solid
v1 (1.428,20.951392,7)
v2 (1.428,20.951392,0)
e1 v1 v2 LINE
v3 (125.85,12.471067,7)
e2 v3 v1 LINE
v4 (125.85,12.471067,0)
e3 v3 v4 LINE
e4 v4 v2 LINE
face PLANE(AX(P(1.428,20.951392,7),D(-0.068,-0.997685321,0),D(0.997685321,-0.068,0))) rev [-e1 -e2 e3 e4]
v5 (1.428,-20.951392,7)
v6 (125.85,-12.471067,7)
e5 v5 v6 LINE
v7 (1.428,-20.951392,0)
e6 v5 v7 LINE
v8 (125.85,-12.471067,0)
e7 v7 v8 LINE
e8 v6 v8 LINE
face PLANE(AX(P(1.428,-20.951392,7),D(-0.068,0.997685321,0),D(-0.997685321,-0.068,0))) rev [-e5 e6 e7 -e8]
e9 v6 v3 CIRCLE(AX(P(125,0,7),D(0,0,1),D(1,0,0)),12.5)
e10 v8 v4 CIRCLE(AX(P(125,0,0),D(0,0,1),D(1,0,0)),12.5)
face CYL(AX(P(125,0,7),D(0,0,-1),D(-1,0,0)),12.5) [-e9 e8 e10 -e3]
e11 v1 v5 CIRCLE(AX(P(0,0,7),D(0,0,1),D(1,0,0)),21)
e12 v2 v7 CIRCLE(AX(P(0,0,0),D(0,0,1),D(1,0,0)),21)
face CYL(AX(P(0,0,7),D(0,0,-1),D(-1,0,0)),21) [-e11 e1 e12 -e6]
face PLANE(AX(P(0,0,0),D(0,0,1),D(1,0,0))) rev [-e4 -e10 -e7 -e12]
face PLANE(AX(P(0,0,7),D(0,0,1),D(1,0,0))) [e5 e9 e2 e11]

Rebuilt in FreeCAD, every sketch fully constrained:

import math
import FreeCAD as App
import Part
import Sketcher
from FreeCAD import Vector
Q = App.Units.Quantity

doc = App.newDocument("Part")
body = doc.addObject("PartDesign::Body", "Body")

# Sketch on XY plane
sketch1 = body.newObject("Sketcher::SketchObject", "Sketch")
sketch1.AttachmentSupport = (doc.getObject("XY_Plane"), [""])
sketch1.MapMode = "FlatFace"
sketch1.addGeometry([
    Part.LineSegment(Vector(126, 12, 0), Vector(1, 21, 0)),
    Part.ArcOfCircle(Part.Circle(Vector(0, 0, 0), Vector(0, 0, 1), 21), math.radians(86), math.radians(274)),
    Part.LineSegment(Vector(1, -21, 0), Vector(126, -12, 0)),
    Part.ArcOfCircle(Part.Circle(Vector(125, 0, 0), Vector(0, 0, 1), 12), math.radians(-86), math.radians(86)),
], False)
sketch1.addConstraint([
    Sketcher.Constraint("Tangent", 0, 2, 1, 1),
    Sketcher.Constraint("Tangent", 1, 2, 2, 1),
    Sketcher.Constraint("Tangent", 2, 2, 3, 1),
    Sketcher.Constraint("Tangent", 3, 2, 0, 1),
    Sketcher.Constraint("Coincident", 1, 3, -1, 1),
    Sketcher.Constraint("PointOnObject", 3, 3, -1),
    Sketcher.Constraint("Radius", 1, Q("21 mm")),
    Sketcher.Constraint("Radius", 3, Q("12.5 mm")),
    Sketcher.Constraint("DistanceX", -1, 1, 3, 3, Q("125 mm")),
])
pad1 = body.newObject("PartDesign::Pad", "Pad")
pad1.Profile = sketch1
pad1.Length = 7

doc.recompute()
